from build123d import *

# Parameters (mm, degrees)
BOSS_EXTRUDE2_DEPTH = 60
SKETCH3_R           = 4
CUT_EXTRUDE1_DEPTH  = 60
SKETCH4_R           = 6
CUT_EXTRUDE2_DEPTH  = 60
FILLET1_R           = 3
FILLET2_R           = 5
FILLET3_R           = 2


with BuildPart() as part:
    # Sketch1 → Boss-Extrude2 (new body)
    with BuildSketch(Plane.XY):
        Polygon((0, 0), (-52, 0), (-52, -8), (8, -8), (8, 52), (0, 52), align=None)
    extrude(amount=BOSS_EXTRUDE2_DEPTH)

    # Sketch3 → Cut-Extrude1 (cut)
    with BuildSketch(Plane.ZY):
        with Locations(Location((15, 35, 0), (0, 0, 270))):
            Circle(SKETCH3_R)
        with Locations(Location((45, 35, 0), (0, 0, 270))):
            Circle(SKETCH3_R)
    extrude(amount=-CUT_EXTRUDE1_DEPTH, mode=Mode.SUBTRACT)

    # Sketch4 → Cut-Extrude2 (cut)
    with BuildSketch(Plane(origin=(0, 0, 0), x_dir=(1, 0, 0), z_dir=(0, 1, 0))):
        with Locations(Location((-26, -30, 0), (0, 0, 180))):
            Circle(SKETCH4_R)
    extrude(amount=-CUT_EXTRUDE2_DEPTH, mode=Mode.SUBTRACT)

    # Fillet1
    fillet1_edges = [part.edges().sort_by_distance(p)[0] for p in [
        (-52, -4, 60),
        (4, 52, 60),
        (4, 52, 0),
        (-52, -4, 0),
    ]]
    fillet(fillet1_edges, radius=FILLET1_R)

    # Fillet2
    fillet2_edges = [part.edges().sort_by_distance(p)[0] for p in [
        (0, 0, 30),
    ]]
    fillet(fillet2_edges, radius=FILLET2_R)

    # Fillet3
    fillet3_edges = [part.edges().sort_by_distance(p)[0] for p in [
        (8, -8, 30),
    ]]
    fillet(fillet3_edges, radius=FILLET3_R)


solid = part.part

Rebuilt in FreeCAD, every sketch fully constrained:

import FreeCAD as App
import Part
import Sketcher

V = App.Vector
Q = App.Units.Quantity


def edges_at(feature, points):
    """Names of the edges that pass closest to the given points."""
    edges = feature.Shape.Edges
    near = lambda p: min(range(len(edges)), key=lambda i: edges[i].distToShape(Part.Vertex(*p))[0])
    return sorted({f"Edge{near(p) + 1}" for p in points})

doc = App.newDocument("Part")
body = doc.addObject("PartDesign::Body", "Body")

sketch1 = body.newObject("Sketcher::SketchObject", "Sketch")
sketch1.AttachmentSupport = (doc.getObject("XY_Plane"), [""])
sketch1.MapMode = "FlatFace"
sketch1.addGeometry(Part.LineSegment(V(0, 0, 0), V(-52, 0, 0)), False)
sketch1.addGeometry(Part.LineSegment(V(-52, 0, 0), V(-52, -8, 0)), False)
sketch1.addGeometry(Part.LineSegment(V(-52, -8, 0), V(8, -8, 0)), False)
sketch1.addGeometry(Part.LineSegment(V(8, -8, 0), V(8, 52, 0)), False)
sketch1.addGeometry(Part.LineSegment(V(8, 52, 0), V(0, 52, 0)), False)
sketch1.addGeometry(Part.LineSegment(V(0, 52, 0), V(0, 0, 0)), False)
sketch1.addConstraint(Sketcher.Constraint("Coincident", 0, 2, 1, 1))
sketch1.addConstraint(Sketcher.Constraint("Coincident", 1, 2, 2, 1))
sketch1.addConstraint(Sketcher.Constraint("Coincident", 2, 2, 3, 1))
sketch1.addConstraint(Sketcher.Constraint("Coincident", 3, 2, 4, 1))
sketch1.addConstraint(Sketcher.Constraint("Coincident", 4, 2, 5, 1))
sketch1.addConstraint(Sketcher.Constraint("Coincident", 5, 2, 0, 1))
sketch1.addConstraint(Sketcher.Constraint("Horizontal", 0))
sketch1.addConstraint(Sketcher.Constraint("Vertical", 1))
sketch1.addConstraint(Sketcher.Constraint("Horizontal", 2))
sketch1.addConstraint(Sketcher.Constraint("Vertical", 3))
sketch1.addConstraint(Sketcher.Constraint("Horizontal", 4))
sketch1.addConstraint(Sketcher.Constraint("Vertical", 5))
sketch1.addConstraint(Sketcher.Constraint("Coincident", 5, 2, -1, 1))
sketch1.addConstraint(Sketcher.Constraint("Equal", 4, 1))
sketch1.addConstraint(Sketcher.Constraint("Equal", 2, 3))
sketch1.addConstraint(Sketcher.Constraint("DistanceX", 0, 2, 0, 1, Q("52 mm")))
sketch1.addConstraint(Sketcher.Constraint("DistanceX", 2, 1, 2, 2, Q("60 mm")))
pad1 = body.newObject("PartDesign::Pad", "Pad")
pad1.Profile = sketch1
pad1.Length = 60

sketch2 = body.newObject("Sketcher::SketchObject", "Sketch001")
sketch2.AttachmentSupport = (doc.getObject("YZ_Plane"), [""])
sketch2.MapMode = "FlatFace"
sketch2.addGeometry(Part.Circle(V(35, 15, 0), V(0, 0, 1), 4), False)
sketch2.addGeometry(Part.Circle(V(35, 45, 0), V(0, 0, 1), 4), False)
sketch2.addConstraint(Sketcher.Constraint("Equal", 0, 1))
sketch2.addConstraint(Sketcher.Constraint("Vertical", 0, 3, 1, 3))
sketch2.addConstraint(Sketcher.Constraint("Diameter", 0, Q("8 mm")))
sketch2.addConstraint(Sketcher.Constraint("DistanceX", -1, 1, 0, 3, Q("35 mm")))
sketch2.addConstraint(Sketcher.Constraint("DistanceY", -1, 1, 0, 3, Q("15 mm")))
sketch2.addConstraint(Sketcher.Constraint("DistanceY", -1, 1, 1, 3, Q("45 mm")))
pocket1 = body.newObject("PartDesign::Pocket", "Pocket")
pocket1.Profile = sketch2
pocket1.Length = 60
pocket1.Reversed = True

sketch3 = body.newObject("Sketcher::SketchObject", "Sketch002")
sketch3.AttachmentSupport = (doc.getObject("XZ_Plane"), [""])
sketch3.MapMode = "FlatFace"
sketch3.addGeometry(Part.Circle(V(-26, 30, 0), V(0, 0, 1), 6), False)
sketch3.addConstraint(Sketcher.Constraint("Diameter", 0, Q("12 mm")))
sketch3.addConstraint(Sketcher.Constraint("DistanceX", 0, 3, -1, 1, Q("26 mm")))
sketch3.addConstraint(Sketcher.Constraint("DistanceY", -1, 1, 0, 3, Q("30 mm")))
pocket2 = body.newObject("PartDesign::Pocket", "Pocket001")
pocket2.Profile = sketch3
pocket2.Length = 60
pocket2.Reversed = True
doc.recompute()

fillet = body.newObject("PartDesign::Fillet", "Fillet")
fillet.Base = (pocket2, edges_at(pocket2, [
    (-52, -4, 60),
    (4, 52, 60),
    (4, 52, 0),
    (-52, -4, 0),
]))
fillet.Radius = 3
doc.recompute()

fillet2 = body.newObject("PartDesign::Fillet", "Fillet001")
fillet2.Base = (fillet, edges_at(fillet, [(0, 0, 30)]))
fillet2.Radius = 5
doc.recompute()

fillet3 = body.newObject("PartDesign::Fillet", "Fillet002")
fillet3.Base = (fillet2, edges_at(fillet2, [(8, -8, 30)]))
fillet3.Radius = 2

doc.recompute()
